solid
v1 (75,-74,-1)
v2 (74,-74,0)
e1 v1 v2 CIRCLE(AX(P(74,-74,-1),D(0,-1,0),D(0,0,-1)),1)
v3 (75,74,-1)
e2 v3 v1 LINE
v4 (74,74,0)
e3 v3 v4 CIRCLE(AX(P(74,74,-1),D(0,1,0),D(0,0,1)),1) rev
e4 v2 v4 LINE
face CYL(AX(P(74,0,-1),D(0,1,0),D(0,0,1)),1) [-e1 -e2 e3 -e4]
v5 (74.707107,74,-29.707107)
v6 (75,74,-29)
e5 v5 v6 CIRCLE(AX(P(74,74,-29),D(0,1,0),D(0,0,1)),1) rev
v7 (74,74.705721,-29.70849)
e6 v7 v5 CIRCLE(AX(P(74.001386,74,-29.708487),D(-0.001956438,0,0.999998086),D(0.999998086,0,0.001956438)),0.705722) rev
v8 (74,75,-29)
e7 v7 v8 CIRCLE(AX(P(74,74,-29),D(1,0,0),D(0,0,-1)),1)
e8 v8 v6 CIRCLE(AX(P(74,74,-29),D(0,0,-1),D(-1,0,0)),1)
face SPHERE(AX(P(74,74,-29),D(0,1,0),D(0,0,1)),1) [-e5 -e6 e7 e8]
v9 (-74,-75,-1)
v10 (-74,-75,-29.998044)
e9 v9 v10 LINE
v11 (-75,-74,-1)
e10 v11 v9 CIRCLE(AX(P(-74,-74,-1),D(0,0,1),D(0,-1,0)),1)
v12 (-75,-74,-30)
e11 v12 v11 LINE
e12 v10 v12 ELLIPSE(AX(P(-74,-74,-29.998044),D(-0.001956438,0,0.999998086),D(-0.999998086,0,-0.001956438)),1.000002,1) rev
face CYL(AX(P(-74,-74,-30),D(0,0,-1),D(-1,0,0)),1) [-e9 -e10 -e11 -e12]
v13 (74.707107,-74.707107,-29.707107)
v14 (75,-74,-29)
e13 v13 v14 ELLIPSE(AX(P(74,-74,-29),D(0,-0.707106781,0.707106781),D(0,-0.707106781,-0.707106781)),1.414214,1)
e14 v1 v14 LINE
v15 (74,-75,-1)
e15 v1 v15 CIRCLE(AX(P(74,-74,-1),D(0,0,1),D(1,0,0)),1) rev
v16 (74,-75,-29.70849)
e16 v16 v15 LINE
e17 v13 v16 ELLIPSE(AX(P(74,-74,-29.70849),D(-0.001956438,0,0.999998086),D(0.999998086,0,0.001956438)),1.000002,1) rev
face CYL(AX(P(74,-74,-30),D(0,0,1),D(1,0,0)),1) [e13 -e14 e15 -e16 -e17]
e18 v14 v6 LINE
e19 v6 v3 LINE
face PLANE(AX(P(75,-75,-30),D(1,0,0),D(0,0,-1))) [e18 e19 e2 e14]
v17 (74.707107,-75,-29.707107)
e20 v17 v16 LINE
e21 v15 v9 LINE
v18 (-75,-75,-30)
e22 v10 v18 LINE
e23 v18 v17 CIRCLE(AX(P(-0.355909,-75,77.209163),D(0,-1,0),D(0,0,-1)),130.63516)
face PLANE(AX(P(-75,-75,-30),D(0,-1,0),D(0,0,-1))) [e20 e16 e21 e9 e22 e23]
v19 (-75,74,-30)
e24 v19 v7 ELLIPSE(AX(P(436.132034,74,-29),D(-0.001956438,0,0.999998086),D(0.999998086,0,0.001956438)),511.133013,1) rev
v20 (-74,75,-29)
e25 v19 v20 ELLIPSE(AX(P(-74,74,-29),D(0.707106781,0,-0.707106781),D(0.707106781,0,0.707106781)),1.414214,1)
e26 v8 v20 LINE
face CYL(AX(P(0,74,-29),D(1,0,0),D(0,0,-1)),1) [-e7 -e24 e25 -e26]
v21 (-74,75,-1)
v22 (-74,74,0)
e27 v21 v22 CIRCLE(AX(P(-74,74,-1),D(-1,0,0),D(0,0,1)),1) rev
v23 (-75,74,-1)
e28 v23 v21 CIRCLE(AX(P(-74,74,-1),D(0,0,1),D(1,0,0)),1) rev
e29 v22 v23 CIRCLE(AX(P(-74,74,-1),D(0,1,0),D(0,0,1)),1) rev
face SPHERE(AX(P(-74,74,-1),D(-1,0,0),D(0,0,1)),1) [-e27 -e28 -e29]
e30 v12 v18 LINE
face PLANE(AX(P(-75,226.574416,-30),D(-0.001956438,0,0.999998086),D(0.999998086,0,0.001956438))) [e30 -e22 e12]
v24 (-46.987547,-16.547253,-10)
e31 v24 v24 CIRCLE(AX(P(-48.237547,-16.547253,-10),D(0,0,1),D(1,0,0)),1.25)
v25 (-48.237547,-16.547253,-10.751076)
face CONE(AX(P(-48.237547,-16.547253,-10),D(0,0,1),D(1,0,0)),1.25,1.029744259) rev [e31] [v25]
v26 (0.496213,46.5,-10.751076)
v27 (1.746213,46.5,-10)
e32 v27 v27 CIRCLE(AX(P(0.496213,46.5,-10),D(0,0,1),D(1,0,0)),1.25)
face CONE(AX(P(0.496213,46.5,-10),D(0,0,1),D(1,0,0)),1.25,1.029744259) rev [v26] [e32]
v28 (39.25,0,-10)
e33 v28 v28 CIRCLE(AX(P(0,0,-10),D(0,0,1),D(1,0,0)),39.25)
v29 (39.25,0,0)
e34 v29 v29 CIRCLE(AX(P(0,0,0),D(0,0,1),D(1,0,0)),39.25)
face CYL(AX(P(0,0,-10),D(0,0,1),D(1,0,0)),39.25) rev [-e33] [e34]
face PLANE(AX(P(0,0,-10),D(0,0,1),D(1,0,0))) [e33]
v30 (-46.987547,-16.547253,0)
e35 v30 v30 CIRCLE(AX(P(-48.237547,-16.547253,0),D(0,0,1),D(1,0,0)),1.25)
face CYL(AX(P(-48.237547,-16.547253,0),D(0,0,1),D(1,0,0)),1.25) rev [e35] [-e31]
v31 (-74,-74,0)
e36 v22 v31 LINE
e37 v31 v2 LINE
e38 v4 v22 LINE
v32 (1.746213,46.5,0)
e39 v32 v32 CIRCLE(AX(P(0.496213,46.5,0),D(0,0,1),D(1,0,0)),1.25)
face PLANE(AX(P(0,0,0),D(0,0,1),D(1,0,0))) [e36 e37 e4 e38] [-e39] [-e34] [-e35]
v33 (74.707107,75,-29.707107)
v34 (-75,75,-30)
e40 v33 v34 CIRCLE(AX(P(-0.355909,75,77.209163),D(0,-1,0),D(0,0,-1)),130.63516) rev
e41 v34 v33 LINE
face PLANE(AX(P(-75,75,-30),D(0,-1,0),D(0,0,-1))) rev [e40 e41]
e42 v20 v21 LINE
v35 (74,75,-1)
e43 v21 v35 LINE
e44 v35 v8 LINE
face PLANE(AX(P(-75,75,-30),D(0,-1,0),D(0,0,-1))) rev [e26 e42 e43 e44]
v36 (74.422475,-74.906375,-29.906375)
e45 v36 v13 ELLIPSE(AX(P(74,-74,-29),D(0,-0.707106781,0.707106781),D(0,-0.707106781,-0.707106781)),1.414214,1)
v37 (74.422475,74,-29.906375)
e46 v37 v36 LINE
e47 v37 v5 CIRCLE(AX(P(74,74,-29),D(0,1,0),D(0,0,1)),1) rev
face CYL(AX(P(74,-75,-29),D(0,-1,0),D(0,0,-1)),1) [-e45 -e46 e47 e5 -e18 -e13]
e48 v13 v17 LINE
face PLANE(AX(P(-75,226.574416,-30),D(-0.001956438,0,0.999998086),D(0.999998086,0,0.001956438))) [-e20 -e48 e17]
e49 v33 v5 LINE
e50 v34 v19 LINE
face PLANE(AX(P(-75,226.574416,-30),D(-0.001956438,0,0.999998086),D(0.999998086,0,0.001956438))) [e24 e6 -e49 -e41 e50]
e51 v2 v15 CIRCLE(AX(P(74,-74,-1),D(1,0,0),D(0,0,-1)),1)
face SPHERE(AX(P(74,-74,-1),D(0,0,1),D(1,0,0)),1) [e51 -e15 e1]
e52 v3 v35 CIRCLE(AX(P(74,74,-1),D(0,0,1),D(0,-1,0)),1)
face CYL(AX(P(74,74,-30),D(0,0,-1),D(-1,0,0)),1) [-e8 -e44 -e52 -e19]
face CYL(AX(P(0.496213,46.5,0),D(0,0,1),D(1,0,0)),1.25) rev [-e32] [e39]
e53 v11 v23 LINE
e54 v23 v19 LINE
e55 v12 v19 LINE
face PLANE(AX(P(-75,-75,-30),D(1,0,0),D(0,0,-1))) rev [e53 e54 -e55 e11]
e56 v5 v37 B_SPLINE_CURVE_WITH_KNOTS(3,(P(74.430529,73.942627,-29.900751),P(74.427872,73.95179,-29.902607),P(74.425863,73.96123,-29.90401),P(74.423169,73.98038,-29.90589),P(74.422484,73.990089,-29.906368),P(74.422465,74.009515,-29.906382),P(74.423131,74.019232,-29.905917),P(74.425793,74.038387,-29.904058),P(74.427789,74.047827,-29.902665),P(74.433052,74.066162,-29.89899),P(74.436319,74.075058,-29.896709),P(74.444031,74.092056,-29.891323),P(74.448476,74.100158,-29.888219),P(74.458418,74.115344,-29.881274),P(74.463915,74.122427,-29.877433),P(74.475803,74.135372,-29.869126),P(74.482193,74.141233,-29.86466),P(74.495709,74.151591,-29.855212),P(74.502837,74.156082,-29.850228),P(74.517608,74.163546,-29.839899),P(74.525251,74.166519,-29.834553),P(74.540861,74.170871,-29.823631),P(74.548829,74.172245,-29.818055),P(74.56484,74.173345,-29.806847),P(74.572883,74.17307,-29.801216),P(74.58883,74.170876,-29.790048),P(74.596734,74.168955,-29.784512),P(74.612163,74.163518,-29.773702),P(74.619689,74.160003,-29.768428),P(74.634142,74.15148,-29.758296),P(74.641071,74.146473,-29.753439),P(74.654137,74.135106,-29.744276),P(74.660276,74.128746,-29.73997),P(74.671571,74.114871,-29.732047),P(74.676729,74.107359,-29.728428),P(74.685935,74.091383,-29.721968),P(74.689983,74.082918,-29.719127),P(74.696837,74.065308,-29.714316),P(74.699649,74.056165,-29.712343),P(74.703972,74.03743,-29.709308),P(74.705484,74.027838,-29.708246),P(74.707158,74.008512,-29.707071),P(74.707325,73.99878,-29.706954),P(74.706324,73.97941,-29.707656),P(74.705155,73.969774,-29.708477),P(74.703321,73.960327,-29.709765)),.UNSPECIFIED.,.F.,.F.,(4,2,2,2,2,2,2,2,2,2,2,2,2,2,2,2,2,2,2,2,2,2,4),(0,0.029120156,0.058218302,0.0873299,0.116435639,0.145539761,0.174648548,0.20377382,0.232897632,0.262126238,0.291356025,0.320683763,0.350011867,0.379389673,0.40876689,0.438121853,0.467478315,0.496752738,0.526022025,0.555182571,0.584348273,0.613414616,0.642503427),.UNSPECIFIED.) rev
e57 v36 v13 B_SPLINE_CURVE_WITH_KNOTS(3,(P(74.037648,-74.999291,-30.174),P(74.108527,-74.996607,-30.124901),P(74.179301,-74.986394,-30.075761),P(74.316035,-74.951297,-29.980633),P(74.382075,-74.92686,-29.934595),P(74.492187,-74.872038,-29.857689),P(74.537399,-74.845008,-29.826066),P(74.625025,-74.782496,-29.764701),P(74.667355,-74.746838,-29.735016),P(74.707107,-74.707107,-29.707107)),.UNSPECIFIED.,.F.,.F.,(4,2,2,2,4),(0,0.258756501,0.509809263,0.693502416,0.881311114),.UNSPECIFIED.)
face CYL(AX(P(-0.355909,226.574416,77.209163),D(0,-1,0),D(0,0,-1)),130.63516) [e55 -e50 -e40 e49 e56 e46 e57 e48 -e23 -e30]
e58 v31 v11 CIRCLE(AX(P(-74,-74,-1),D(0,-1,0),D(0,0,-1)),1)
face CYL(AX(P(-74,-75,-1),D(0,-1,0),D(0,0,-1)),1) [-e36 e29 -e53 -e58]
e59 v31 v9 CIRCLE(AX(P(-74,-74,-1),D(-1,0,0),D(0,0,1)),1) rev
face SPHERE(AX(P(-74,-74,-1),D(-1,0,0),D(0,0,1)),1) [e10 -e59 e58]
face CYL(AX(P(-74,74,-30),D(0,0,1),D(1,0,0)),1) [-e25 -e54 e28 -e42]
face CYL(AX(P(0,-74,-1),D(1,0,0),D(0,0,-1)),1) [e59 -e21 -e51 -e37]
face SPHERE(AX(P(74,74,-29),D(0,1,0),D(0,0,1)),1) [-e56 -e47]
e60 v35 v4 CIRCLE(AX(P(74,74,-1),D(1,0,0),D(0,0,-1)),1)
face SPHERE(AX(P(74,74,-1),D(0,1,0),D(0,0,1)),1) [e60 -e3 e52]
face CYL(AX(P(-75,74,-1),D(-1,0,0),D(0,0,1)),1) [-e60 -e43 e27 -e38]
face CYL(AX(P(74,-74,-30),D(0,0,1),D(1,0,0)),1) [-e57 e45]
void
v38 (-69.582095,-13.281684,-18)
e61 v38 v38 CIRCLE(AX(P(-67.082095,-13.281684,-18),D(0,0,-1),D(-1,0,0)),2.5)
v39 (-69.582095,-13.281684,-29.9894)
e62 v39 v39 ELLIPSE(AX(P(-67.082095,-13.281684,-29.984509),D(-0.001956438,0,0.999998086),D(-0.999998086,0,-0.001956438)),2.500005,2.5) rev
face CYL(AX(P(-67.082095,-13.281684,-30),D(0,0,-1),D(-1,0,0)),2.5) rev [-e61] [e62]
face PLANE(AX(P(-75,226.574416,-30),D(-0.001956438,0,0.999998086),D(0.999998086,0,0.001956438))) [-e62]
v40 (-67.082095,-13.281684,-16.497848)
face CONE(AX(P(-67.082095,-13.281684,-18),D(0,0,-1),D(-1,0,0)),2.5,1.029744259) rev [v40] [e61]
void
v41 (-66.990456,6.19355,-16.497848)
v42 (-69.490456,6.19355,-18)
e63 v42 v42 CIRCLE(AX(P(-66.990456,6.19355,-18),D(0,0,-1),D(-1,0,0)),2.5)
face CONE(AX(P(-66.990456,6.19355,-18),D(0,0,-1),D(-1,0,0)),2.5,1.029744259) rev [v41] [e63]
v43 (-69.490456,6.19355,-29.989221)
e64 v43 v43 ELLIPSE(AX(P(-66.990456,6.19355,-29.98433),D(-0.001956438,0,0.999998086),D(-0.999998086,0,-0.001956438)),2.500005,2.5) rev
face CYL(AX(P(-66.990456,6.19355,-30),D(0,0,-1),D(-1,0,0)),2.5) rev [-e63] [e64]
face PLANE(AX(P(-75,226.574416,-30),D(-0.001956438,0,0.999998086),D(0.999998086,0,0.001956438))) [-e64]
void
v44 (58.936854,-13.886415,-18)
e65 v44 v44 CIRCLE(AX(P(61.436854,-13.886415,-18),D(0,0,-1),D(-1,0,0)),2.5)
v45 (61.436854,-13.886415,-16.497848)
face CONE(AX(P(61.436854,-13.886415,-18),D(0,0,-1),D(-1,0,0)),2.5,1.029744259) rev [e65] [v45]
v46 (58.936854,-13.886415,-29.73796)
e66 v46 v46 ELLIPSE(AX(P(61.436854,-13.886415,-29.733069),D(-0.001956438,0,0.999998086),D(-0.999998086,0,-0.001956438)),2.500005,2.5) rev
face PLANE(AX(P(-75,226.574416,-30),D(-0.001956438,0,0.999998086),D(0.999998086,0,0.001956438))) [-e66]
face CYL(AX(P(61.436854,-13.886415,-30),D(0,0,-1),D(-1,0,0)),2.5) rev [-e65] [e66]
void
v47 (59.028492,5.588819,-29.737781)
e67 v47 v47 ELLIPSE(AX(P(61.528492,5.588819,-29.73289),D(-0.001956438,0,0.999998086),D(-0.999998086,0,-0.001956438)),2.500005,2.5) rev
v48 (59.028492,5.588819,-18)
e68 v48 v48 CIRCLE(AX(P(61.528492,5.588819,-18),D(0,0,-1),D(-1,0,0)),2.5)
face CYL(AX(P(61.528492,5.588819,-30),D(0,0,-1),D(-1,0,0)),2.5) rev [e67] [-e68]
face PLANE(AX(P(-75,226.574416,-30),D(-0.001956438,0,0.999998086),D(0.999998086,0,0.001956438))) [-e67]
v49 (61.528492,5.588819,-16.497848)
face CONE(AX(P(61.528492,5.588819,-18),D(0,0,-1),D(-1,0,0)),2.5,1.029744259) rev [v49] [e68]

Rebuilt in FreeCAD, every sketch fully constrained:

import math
import FreeCAD as App
import Part
import Sketcher

V = App.Vector
Q = App.Units.Quantity


def edges_at(feature, points):
    """Names of the edges that pass closest to the given points."""
    edges = feature.Shape.Edges
    near = lambda p: min(range(len(edges)), key=lambda i: edges[i].distToShape(Part.Vertex(*p))[0])
    return sorted({f"Edge{near(p) + 1}" for p in points})

doc = App.newDocument("Part")
params = doc.addObject("Spreadsheet::Sheet", "Params")
for row, (alias, value) in enumerate([
    ("sketch1_width", "150 mm"),
    ("pad1_length", "30 mm"),
    ("fillet_radius", "1 mm"),
    ("sketch2_diameter", "78.5 mm"),
    ("pocket1_length", "10 mm"),
    ("sketch3_diameter", "5 mm"),
    ("hole_diameter", "5 mm"),
    ("hole_depth", "12 mm"),
    ("pad2_length", "150 mm"),
    ("sketch5_diameter", "2.5 mm"),
    ("hole2_diameter", "2.5 mm"),
    ("hole2_depth", "10 mm"),
], start=1):
    params.set(f"A{row}", alias)
    params.set(f"B{row}", "=" + value)
    params.setAlias(f"B{row}", alias)

body = doc.addObject("PartDesign::Body", "Body")

# Sketch on XY plane
sketch1 = doc.addObject("Sketcher::SketchObject", "Sketch")
body.addObject(sketch1)
sketch1.AttachmentSupport = (doc.XY_Plane, [""])
sketch1.MapMode = "FlatFace"
sketch1.addGeometry(Part.LineSegment(V(-75, 75, 0), V(-75, -75, 0)), False)
sketch1.addGeometry(Part.LineSegment(V(-75, -75, 0), V(75, -75, 0)), False)
sketch1.addGeometry(Part.LineSegment(V(75, -75, 0), V(75, 75, 0)), False)
sketch1.addGeometry(Part.LineSegment(V(75, 75, 0), V(-75, 75, 0)), False)
sketch1.addConstraint(Sketcher.Constraint("Coincident", 0, 2, 1, 1))
sketch1.addConstraint(Sketcher.Constraint("Coincident", 1, 2, 2, 1))
sketch1.addConstraint(Sketcher.Constraint("Coincident", 2, 2, 3, 1))
sketch1.addConstraint(Sketcher.Constraint("Coincident", 3, 2, 0, 1))
sketch1.addConstraint(Sketcher.Constraint("Vertical", 0))
sketch1.addConstraint(Sketcher.Constraint("Horizontal", 1))
sketch1.addConstraint(Sketcher.Constraint("Vertical", 2))
sketch1.addConstraint(Sketcher.Constraint("Horizontal", 3))
sketch1.addConstraint(Sketcher.Constraint("Symmetric", 0, 2, 2, 2, -1, 1))
sketch1.addConstraint(Sketcher.Constraint("Equal", 3, 0))
sketch1.addConstraint(Sketcher.Constraint("DistanceX", 1, 1, 1, 2, Q("150 mm")))
sketch1.setExpression("Constraints[10]", "Params.sketch1_width")
pad1 = doc.addObject("PartDesign::Pad", "Pad")
body.addObject(pad1)
pad1.Profile = sketch1
pad1.setExpression("Length", "Params.pad1_length")
pad1.Reversed = True
doc.recompute()

fillet = doc.addObject("PartDesign::Fillet", "Fillet")
body.addObject(fillet)
fillet.Base = (pad1, edges_at(pad1, [
    (0, 75, -30),
    (-75, 0, 0),
    (0, 75, 0),
    (75, 0, 0),
    (0, -75, 0),
    (-75, -75, -15),
    (-75, 75, -15),
    (75, 75, -15),
    (75, -75, -15),
    (75, 0, -30),
]))
fillet.setExpression("Radius", "Params.fillet_radius")

# Sketch on XY plane
sketch2 = doc.addObject("Sketcher::SketchObject", "Sketch001")
body.addObject(sketch2)
sketch2.AttachmentSupport = (doc.XY_Plane, [""])
sketch2.MapMode = "FlatFace"
sketch2.addGeometry(Part.Circle(V(0, 0, 0), V(0, 0, 1), 39), False)
sketch2.addConstraint(Sketcher.Constraint("Coincident", 0, 3, -1, 1))
sketch2.addConstraint(Sketcher.Constraint("Diameter", 0, Q("78.5 mm")))
sketch2.setExpression("Constraints[1]", "Params.sketch2_diameter")
pocket1 = doc.addObject("PartDesign::Pocket", "Pocket")
body.addObject(pocket1)
pocket1.Profile = sketch2
pocket1.setExpression("Length", "Params.pocket1_length")

# Sketch on XY plane
sketch3 = doc.addObject("Sketcher::SketchObject", "Sketch002")
body.addObject(sketch3)
sketch3.AttachmentSupport = (doc.XY_Plane, [""])
sketch3.MapMode = "FlatFace"
sketch3.AttachmentOffset = App.Placement(V(0, 0, -30), App.Rotation())
sketch3.addGeometry(Part.Circle(V(61.5, 5.6, 0), V(0, 0, 1), 2.5), False)
sketch3.addGeometry(Part.Circle(V(61.4, -13.9, 0), V(0, 0, 1), 2.5), False)
sketch3.addGeometry(Part.Circle(V(-67, 6.2, 0), V(0, 0, 1), 2.5), False)
sketch3.addGeometry(Part.Circle(V(-67.1, -13.3, 0), V(0, 0, 1), 2.5), False)
sketch3.addConstraint(Sketcher.Constraint("Equal", 0, 1))
sketch3.addConstraint(Sketcher.Constraint("Equal", 1, 2))
sketch3.addConstraint(Sketcher.Constraint("Equal", 2, 3))
sketch3.addConstraint(Sketcher.Constraint("Diameter", 0, Q("5 mm")))
sketch3.addConstraint(Sketcher.Constraint("DistanceY", -1, 1, 0, 3, Q("5.588819 mm")))
sketch3.addConstraint(Sketcher.Constraint("DistanceY", -1, 1, 2, 3, Q("6.19355 mm")))
sketch3.addConstraint(Sketcher.Constraint("DistanceX", 1, 3, 0, 3, Q("0.091638 mm")))
sketch3.addConstraint(Sketcher.Constraint("DistanceX", 2, 3, 0, 3, Q("128.518949 mm")))
sketch3.addConstraint(Sketcher.Constraint("DistanceX", 3, 3, 2, 3, Q("0.091638 mm")))
sketch3.addConstraint(Sketcher.Constraint("DistanceY", 1, 3, 3, 3, Q("0.604731 mm")))
sketch3.addConstraint(Sketcher.Constraint("DistanceX", -1, 1, 0, 3, Q("61.528492 mm")))
sketch3.addConstraint(Sketcher.Constraint("DistanceY", 1, 3, -1, 1, Q("13.886415 mm")))
sketch3.setExpression("Constraints[3]", "Params.sketch3_diameter")
doc.recompute()
hole = doc.addObject("PartDesign::Hole", "Hole")
body.addObject(hole)
hole.Profile = sketch3
hole.ThreadType = "None"
hole.setExpression("Diameter", "Params.hole_diameter")
hole.DepthType = "Dimension"
hole.setExpression("Depth", "Params.hole_depth")
hole.DrillPoint = "Angled"
hole.DrillPointAngle = 118
hole.Reversed = True

# Sketch on XZ plane
sketch4 = doc.addObject("Sketcher::SketchObject", "Sketch003")
body.addObject(sketch4)
sketch4.AttachmentSupport = (doc.XZ_Plane, [""])
sketch4.MapMode = "FlatFace"
sketch4.AttachmentOffset = App.Placement(V(0, 0, 75), App.Rotation())
sketch4.addGeometry(Part.LineSegment(V(75, -30, 0), V(-75, -30, 0)), False)
sketch4.addGeometry(Part.ArcOfCircle(Part.Circle(V(0, 77, 0), V(0, 0, 1), 131), math.radians(-125), math.radians(-55)), False)
sketch4.addConstraint(Sketcher.Constraint("Coincident", 0, 1, 1, 2))
sketch4.addConstraint(Sketcher.Constraint("Coincident", 1, 1, 0, 2))
sketch4.addConstraint(Sketcher.Constraint("DistanceX", 1, 1, -1, 1, Q("75 mm")))
sketch4.addConstraint(Sketcher.Constraint("DistanceY", 1, 1, -1, 1, Q("30 mm")))
sketch4.addConstraint(Sketcher.Constraint("Radius", 1, Q("130.63516 mm")))
sketch4.addConstraint(Sketcher.Constraint("DistanceX", 1, 3, -1, 1, Q("0.355909 mm")))
sketch4.addConstraint(Sketcher.Constraint("DistanceY", 0, 1, 1, 3, Q("106.91627 mm")))
pad2 = doc.addObject("PartDesign::Pad", "Pad001")
body.addObject(pad2)
pad2.Profile = sketch4
pad2.setExpression("Length", "Params.pad2_length")
pad2.Reversed = True

# Sketch on XY plane
sketch5 = doc.addObject("Sketcher::SketchObject", "Sketch004")
body.addObject(sketch5)
sketch5.AttachmentSupport = (doc.XY_Plane, [""])
sketch5.MapMode = "FlatFace"
sketch5.addGeometry(Part.Circle(V(0.5, 46.5, 0), V(0, 0, 1), 1.2), False)
sketch5.addGeometry(Part.Circle(V(-48.2, -16.5, 0), V(0, 0, 1), 1.2), False)
sketch5.addConstraint(Sketcher.Constraint("Equal", 0, 1))
sketch5.addConstraint(Sketcher.Constraint("Diameter", 0, Q("2.5 mm")))
sketch5.addConstraint(Sketcher.Constraint("DistanceY", -1, 1, 0, 3, Q("46.5 mm")))
sketch5.addConstraint(Sketcher.Constraint("DistanceX", 1, 3, 0, 3, Q("48.73376 mm")))
sketch5.addConstraint(Sketcher.Constraint("DistanceX", -1, 1, 0, 3, Q("0.496213 mm")))
sketch5.addConstraint(Sketcher.Constraint("DistanceY", 1, 3, -1, 1, Q("16.547253 mm")))
sketch5.setExpression("Constraints[1]", "Params.sketch5_diameter")
doc.recompute()
hole2 = doc.addObject("PartDesign::Hole", "Hole001")
body.addObject(hole2)
hole2.Profile = sketch5
hole2.ThreadType = "None"
hole2.setExpression("Diameter", "Params.hole2_diameter")
hole2.DepthType = "Dimension"
hole2.setExpression("Depth", "Params.hole2_depth")
hole2.DrillPoint = "Angled"
hole2.DrillPointAngle = 118

doc.recompute()
